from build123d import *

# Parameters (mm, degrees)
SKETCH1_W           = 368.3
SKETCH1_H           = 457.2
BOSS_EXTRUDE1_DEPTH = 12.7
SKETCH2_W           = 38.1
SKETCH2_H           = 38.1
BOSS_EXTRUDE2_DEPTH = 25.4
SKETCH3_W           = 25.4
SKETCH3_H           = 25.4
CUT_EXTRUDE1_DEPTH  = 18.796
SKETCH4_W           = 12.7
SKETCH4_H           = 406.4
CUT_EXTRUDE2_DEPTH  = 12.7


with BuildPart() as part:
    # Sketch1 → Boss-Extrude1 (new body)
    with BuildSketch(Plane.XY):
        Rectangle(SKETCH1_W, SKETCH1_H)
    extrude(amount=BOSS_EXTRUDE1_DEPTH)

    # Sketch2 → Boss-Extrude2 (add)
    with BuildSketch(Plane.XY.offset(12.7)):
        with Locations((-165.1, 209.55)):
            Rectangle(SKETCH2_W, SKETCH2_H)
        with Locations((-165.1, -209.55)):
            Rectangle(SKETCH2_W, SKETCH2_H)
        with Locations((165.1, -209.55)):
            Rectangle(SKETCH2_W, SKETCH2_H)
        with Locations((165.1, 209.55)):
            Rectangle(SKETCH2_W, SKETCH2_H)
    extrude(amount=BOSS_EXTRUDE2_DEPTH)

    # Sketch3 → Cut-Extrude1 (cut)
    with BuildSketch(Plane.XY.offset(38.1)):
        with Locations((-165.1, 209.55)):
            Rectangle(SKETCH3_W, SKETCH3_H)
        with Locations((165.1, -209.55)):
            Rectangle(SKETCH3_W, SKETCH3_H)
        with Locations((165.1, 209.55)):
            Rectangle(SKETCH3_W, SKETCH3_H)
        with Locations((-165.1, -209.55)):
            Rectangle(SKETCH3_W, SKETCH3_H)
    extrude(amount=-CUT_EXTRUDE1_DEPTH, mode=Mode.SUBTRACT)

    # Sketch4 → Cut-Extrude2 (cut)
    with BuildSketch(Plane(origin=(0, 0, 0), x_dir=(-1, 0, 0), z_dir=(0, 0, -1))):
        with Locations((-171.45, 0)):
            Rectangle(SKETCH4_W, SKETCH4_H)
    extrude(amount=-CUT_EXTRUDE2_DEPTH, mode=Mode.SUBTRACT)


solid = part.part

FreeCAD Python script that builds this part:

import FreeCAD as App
import Part
import Sketcher
Q = App.Units.Quantity

doc = App.newDocument("Part")
body = doc.addObject("PartDesign::Body", "Body")

sketch1 = body.newObject("Sketcher::SketchObject", "Sketch")
sketch1.AttachmentSupport = (doc.getObject("XY_Plane"), [""])
sketch1.MapMode = "FlatFace"
sketch1.addGeometry([
    Part.LineSegment(App.Vector(-184, 229, 0), App.Vector(-184, -229, 0)),
    Part.LineSegment(App.Vector(-184, -229, 0), App.Vector(184, -229, 0)),
    Part.LineSegment(App.Vector(184, -229, 0), App.Vector(184, 229, 0)),
    Part.LineSegment(App.Vector(184, 229, 0), App.Vector(-184, 229, 0)),
], False)
sketch1.addConstraint([
    Sketcher.Constraint("Coincident", 0, 2, 1, 1),
    Sketcher.Constraint("Coincident", 1, 2, 2, 1),
    Sketcher.Constraint("Coincident", 2, 2, 3, 1),
    Sketcher.Constraint("Coincident", 3, 2, 0, 1),
    Sketcher.Constraint("Vertical", 0),
    Sketcher.Constraint("Horizontal", 1),
    Sketcher.Constraint("Vertical", 2),
    Sketcher.Constraint("Horizontal", 3),
    Sketcher.Constraint("Symmetric", 0, 2, 2, 2, -1, 1),
    Sketcher.Constraint("DistanceY", 0, 2, 0, 1, Q("18 in")),
    Sketcher.Constraint("DistanceX", 1, 1, 1, 2, Q("14.5 in")),
])
pad1 = body.newObject("PartDesign::Pad", "Pad")
pad1.Profile = sketch1
pad1.Length = Q("0.5 in")

sketch2 = body.newObject("Sketcher::SketchObject", "Sketch001")
sketch2.AttachmentSupport = (doc.getObject("XY_Plane"), [""])
sketch2.MapMode = "FlatFace"
sketch2.AttachmentOffset = App.Placement(App.Vector(0, 0, 0.5 * 25.4), App.Rotation())
sketch2.addGeometry([
    Part.LineSegment(App.Vector(-184, 229, 0), App.Vector(-184, 190, 0)),
    Part.LineSegment(App.Vector(-184, 190, 0), App.Vector(-146, 190, 0)),
    Part.LineSegment(App.Vector(-146, 190, 0), App.Vector(-146, 229, 0)),
    Part.LineSegment(App.Vector(-146, 229, 0), App.Vector(-184, 229, 0)),
    Part.LineSegment(App.Vector(-184, -190, 0), App.Vector(-184, -229, 0)),
    Part.LineSegment(App.Vector(-184, -229, 0), App.Vector(-146, -229, 0)),
    Part.LineSegment(App.Vector(-146, -229, 0), App.Vector(-146, -190, 0)),
    Part.LineSegment(App.Vector(-146, -190, 0), App.Vector(-184, -190, 0)),
    Part.LineSegment(App.Vector(146, -190, 0), App.Vector(146, -229, 0)),
    Part.LineSegment(App.Vector(146, -229, 0), App.Vector(184, -229, 0)),
    Part.LineSegment(App.Vector(184, -229, 0), App.Vector(184, -190, 0)),
    Part.LineSegment(App.Vector(184, -190, 0), App.Vector(146, -190, 0)),
    Part.LineSegment(App.Vector(146, 229, 0), App.Vector(146, 190, 0)),
    Part.LineSegment(App.Vector(146, 190, 0), App.Vector(184, 190, 0)),
    Part.LineSegment(App.Vector(184, 190, 0), App.Vector(184, 229, 0)),
    Part.LineSegment(App.Vector(184, 229, 0), App.Vector(146, 229, 0)),
], False)
sketch2.addConstraint([
    Sketcher.Constraint("Coincident", 0, 2, 1, 1),
    Sketcher.Constraint("Coincident", 1, 2, 2, 1),
    Sketcher.Constraint("Coincident", 2, 2, 3, 1),
    Sketcher.Constraint("Coincident", 3, 2, 0, 1),
    Sketcher.Constraint("Coincident", 4, 2, 5, 1),
    Sketcher.Constraint("Coincident", 5, 2, 6, 1),
    Sketcher.Constraint("Coincident", 6, 2, 7, 1),
    Sketcher.Constraint("Coincident", 7, 2, 4, 1),
    Sketcher.Constraint("Coincident", 8, 2, 9, 1),
    Sketcher.Constraint("Coincident", 9, 2, 10, 1),
    Sketcher.Constraint("Coincident", 10, 2, 11, 1),
    Sketcher.Constraint("Coincident", 11, 2, 8, 1),
    Sketcher.Constraint("Coincident", 12, 2, 13, 1),
    Sketcher.Constraint("Coincident", 13, 2, 14, 1),
    Sketcher.Constraint("Coincident", 14, 2, 15, 1),
    Sketcher.Constraint("Coincident", 15, 2, 12, 1),
    Sketcher.Constraint("Vertical", 0),
    Sketcher.Constraint("Horizontal", 1),
    Sketcher.Constraint("Vertical", 2),
    Sketcher.Constraint("Horizontal", 3),
    Sketcher.Constraint("Vertical", 4),
    Sketcher.Constraint("Horizontal", 5),
    Sketcher.Constraint("Vertical", 6),
    Sketcher.Constraint("Horizontal", 7),
    Sketcher.Constraint("Vertical", 8),
    Sketcher.Constraint("Horizontal", 9),
    Sketcher.Constraint("Vertical", 10),
    Sketcher.Constraint("Horizontal", 11),
    Sketcher.Constraint("Vertical", 12),
    Sketcher.Constraint("Horizontal", 13),
    Sketcher.Constraint("Vertical", 14),
    Sketcher.Constraint("Horizontal", 15),
    Sketcher.Constraint("Symmetric", 2, 2, 8, 2, -1, 1),
    Sketcher.Constraint("Symmetric", 0, 2, 10, 2, -1, 1),
    Sketcher.Constraint("Symmetric", 6, 2, 12, 2, -1, 1),
    Sketcher.Constraint("Symmetric", 4, 2, 14, 2, -1, 1),
    Sketcher.Constraint("Symmetric", 5, 2, 8, 2, -2),
    Sketcher.Constraint("Symmetric", 7, 2, 10, 2, -2),
    Sketcher.Constraint("Equal", 15, 0),
    Sketcher.Constraint("DistanceX", 1, 1, 1, 2, Q("1.5 in")),
    Sketcher.Constraint("DistanceY", -1, 1, 2, 2, Q("9 in")),
    Sketcher.Constraint("DistanceX", 4, 2, 8, 2, Q("13 in")),
])
pad2 = body.newObject("PartDesign::Pad", "Pad001")
pad2.Profile = sketch2
pad2.Length = Q("1 in")

sketch3 = body.newObject("Sketcher::SketchObject", "Sketch002")
sketch3.AttachmentSupport = (doc.getObject("XY_Plane"), [""])
sketch3.MapMode = "FlatFace"
sketch3.AttachmentOffset = App.Placement(App.Vector(0, 0, 1.5 * 25.4), App.Rotation())
sketch3.addGeometry([
    Part.LineSegment(App.Vector(-178, 222, 0), App.Vector(-178, 197, 0)),
    Part.LineSegment(App.Vector(-178, 197, 0), App.Vector(-152, 197, 0)),
    Part.LineSegment(App.Vector(-152, 197, 0), App.Vector(-152, 222, 0)),
    Part.LineSegment(App.Vector(-152, 222, 0), App.Vector(-178, 222, 0)),
    Part.LineSegment(App.Vector(152, -197, 0), App.Vector(152, -222, 0)),
    Part.LineSegment(App.Vector(152, -222, 0), App.Vector(178, -222, 0)),
    Part.LineSegment(App.Vector(178, -222, 0), App.Vector(178, -197, 0)),
    Part.LineSegment(App.Vector(178, -197, 0), App.Vector(152, -197, 0)),
    Part.LineSegment(App.Vector(152, 222, 0), App.Vector(152, 197, 0)),
    Part.LineSegment(App.Vector(152, 197, 0), App.Vector(178, 197, 0)),
    Part.LineSegment(App.Vector(178, 197, 0), App.Vector(178, 222, 0)),
    Part.LineSegment(App.Vector(178, 222, 0), App.Vector(152, 222, 0)),
    Part.LineSegment(App.Vector(-178, -197, 0), App.Vector(-178, -222, 0)),
    Part.LineSegment(App.Vector(-178, -222, 0), App.Vector(-152, -222, 0)),
    Part.LineSegment(App.Vector(-152, -222, 0), App.Vector(-152, -197, 0)),
    Part.LineSegment(App.Vector(-152, -197, 0), App.Vector(-178, -197, 0)),
], False)
sketch3.addConstraint([
    Sketcher.Constraint("Coincident", 0, 2, 1, 1),
    Sketcher.Constraint("Coincident", 1, 2, 2, 1),
    Sketcher.Constraint("Coincident", 2, 2, 3, 1),
    Sketcher.Constraint("Coincident", 3, 2, 0, 1),
    Sketcher.Constraint("Coincident", 4, 2, 5, 1),
    Sketcher.Constraint("Coincident", 5, 2, 6, 1),
    Sketcher.Constraint("Coincident", 6, 2, 7, 1),
    Sketcher.Constraint("Coincident", 7, 2, 4, 1),
    Sketcher.Constraint("Coincident", 8, 2, 9, 1),
    Sketcher.Constraint("Coincident", 9, 2, 10, 1),
    Sketcher.Constraint("Coincident", 10, 2, 11, 1),
    Sketcher.Constraint("Coincident", 11, 2, 8, 1),
    Sketcher.Constraint("Coincident", 12, 2, 13, 1),
    Sketcher.Constraint("Coincident", 13, 2, 14, 1),
    Sketcher.Constraint("Coincident", 14, 2, 15, 1),
    Sketcher.Constraint("Coincident", 15, 2, 12, 1),
    Sketcher.Constraint("Vertical", 0),
    Sketcher.Constraint("Horizontal", 1),
    Sketcher.Constraint("Vertical", 2),
    Sketcher.Constraint("Horizontal", 3),
    Sketcher.Constraint("Vertical", 4),
    Sketcher.Constraint("Horizontal", 5),
    Sketcher.Constraint("Vertical", 6),
    Sketcher.Constraint("Horizontal", 7),
    Sketcher.Constraint("Vertical", 8),
    Sketcher.Constraint("Horizontal", 9),
    Sketcher.Constraint("Vertical", 10),
    Sketcher.Constraint("Horizontal", 11),
    Sketcher.Constraint("Vertical", 12),
    Sketcher.Constraint("Horizontal", 13),
    Sketcher.Constraint("Vertical", 14),
    Sketcher.Constraint("Horizontal", 15),
    Sketcher.Constraint("Symmetric", 2, 2, 4, 2, -1, 1),
    Sketcher.Constraint("Symmetric", 0, 2, 6, 2, -1, 1),
    Sketcher.Constraint("Symmetric", 10, 2, 12, 2, -1, 1),
    Sketcher.Constraint("Symmetric", 8, 2, 14, 2, -1, 1),
    Sketcher.Constraint("Symmetric", 1, 2, 8, 2, -2),
    Sketcher.Constraint("Symmetric", 3, 2, 10, 2, -2),
    Sketcher.Constraint("Equal", 15, 0),
    Sketcher.Constraint("DistanceX", 1, 1, 1, 2, Q("1 in")),
    Sketcher.Constraint("DistanceX", 0, 2, -1, 1, Q("7 in")),
    Sketcher.Constraint("DistanceY", 4, 2, 1, 2, Q("16.5 in")),
])
pocket1 = body.newObject("PartDesign::Pocket", "Pocket")
pocket1.Profile = sketch3
pocket1.Length = Q("0.74 in")

sketch4 = body.newObject("Sketcher::SketchObject", "Sketch003")
sketch4.AttachmentSupport = (doc.getObject("XY_Plane"), [""])
sketch4.MapMode = "FlatFace"
sketch4.addGeometry([
    Part.LineSegment(App.Vector(178, 203, 0), App.Vector(178, -203, 0)),
    Part.LineSegment(App.Vector(178, -203, 0), App.Vector(165, -203, 0)),
    Part.LineSegment(App.Vector(165, -203, 0), App.Vector(165, 203, 0)),
    Part.LineSegment(App.Vector(165, 203, 0), App.Vector(178, 203, 0)),
], False)
sketch4.addConstraint([
    Sketcher.Constraint("Coincident", 0, 2, 1, 1),
    Sketcher.Constraint("Coincident", 1, 2, 2, 1),
    Sketcher.Constraint("Coincident", 2, 2, 3, 1),
    Sketcher.Constraint("Coincident", 3, 2, 0, 1),
    Sketcher.Constraint("Vertical", 0),
    Sketcher.Constraint("Horizontal", 1),
    Sketcher.Constraint("Vertical", 2),
    Sketcher.Constraint("Horizontal", 3),
    Sketcher.Constraint("DistanceY", 0, 2, 0, 1, Q("16 in")),
    Sketcher.Constraint("DistanceX", 1, 2, 1, 1, Q("0.5 in")),
    Sketcher.Constraint("DistanceX", -1, 1, 0, 2, Q("7 in")),
    Sketcher.Constraint("DistanceY", 0, 2, -1, 1, Q("8 in")),
])
pocket2 = body.newObject("PartDesign::Pocket", "Pocket001")
pocket2.Profile = sketch4
pocket2.Length = Q("0.5 in")
pocket2.Reversed = True

doc.recompute()
